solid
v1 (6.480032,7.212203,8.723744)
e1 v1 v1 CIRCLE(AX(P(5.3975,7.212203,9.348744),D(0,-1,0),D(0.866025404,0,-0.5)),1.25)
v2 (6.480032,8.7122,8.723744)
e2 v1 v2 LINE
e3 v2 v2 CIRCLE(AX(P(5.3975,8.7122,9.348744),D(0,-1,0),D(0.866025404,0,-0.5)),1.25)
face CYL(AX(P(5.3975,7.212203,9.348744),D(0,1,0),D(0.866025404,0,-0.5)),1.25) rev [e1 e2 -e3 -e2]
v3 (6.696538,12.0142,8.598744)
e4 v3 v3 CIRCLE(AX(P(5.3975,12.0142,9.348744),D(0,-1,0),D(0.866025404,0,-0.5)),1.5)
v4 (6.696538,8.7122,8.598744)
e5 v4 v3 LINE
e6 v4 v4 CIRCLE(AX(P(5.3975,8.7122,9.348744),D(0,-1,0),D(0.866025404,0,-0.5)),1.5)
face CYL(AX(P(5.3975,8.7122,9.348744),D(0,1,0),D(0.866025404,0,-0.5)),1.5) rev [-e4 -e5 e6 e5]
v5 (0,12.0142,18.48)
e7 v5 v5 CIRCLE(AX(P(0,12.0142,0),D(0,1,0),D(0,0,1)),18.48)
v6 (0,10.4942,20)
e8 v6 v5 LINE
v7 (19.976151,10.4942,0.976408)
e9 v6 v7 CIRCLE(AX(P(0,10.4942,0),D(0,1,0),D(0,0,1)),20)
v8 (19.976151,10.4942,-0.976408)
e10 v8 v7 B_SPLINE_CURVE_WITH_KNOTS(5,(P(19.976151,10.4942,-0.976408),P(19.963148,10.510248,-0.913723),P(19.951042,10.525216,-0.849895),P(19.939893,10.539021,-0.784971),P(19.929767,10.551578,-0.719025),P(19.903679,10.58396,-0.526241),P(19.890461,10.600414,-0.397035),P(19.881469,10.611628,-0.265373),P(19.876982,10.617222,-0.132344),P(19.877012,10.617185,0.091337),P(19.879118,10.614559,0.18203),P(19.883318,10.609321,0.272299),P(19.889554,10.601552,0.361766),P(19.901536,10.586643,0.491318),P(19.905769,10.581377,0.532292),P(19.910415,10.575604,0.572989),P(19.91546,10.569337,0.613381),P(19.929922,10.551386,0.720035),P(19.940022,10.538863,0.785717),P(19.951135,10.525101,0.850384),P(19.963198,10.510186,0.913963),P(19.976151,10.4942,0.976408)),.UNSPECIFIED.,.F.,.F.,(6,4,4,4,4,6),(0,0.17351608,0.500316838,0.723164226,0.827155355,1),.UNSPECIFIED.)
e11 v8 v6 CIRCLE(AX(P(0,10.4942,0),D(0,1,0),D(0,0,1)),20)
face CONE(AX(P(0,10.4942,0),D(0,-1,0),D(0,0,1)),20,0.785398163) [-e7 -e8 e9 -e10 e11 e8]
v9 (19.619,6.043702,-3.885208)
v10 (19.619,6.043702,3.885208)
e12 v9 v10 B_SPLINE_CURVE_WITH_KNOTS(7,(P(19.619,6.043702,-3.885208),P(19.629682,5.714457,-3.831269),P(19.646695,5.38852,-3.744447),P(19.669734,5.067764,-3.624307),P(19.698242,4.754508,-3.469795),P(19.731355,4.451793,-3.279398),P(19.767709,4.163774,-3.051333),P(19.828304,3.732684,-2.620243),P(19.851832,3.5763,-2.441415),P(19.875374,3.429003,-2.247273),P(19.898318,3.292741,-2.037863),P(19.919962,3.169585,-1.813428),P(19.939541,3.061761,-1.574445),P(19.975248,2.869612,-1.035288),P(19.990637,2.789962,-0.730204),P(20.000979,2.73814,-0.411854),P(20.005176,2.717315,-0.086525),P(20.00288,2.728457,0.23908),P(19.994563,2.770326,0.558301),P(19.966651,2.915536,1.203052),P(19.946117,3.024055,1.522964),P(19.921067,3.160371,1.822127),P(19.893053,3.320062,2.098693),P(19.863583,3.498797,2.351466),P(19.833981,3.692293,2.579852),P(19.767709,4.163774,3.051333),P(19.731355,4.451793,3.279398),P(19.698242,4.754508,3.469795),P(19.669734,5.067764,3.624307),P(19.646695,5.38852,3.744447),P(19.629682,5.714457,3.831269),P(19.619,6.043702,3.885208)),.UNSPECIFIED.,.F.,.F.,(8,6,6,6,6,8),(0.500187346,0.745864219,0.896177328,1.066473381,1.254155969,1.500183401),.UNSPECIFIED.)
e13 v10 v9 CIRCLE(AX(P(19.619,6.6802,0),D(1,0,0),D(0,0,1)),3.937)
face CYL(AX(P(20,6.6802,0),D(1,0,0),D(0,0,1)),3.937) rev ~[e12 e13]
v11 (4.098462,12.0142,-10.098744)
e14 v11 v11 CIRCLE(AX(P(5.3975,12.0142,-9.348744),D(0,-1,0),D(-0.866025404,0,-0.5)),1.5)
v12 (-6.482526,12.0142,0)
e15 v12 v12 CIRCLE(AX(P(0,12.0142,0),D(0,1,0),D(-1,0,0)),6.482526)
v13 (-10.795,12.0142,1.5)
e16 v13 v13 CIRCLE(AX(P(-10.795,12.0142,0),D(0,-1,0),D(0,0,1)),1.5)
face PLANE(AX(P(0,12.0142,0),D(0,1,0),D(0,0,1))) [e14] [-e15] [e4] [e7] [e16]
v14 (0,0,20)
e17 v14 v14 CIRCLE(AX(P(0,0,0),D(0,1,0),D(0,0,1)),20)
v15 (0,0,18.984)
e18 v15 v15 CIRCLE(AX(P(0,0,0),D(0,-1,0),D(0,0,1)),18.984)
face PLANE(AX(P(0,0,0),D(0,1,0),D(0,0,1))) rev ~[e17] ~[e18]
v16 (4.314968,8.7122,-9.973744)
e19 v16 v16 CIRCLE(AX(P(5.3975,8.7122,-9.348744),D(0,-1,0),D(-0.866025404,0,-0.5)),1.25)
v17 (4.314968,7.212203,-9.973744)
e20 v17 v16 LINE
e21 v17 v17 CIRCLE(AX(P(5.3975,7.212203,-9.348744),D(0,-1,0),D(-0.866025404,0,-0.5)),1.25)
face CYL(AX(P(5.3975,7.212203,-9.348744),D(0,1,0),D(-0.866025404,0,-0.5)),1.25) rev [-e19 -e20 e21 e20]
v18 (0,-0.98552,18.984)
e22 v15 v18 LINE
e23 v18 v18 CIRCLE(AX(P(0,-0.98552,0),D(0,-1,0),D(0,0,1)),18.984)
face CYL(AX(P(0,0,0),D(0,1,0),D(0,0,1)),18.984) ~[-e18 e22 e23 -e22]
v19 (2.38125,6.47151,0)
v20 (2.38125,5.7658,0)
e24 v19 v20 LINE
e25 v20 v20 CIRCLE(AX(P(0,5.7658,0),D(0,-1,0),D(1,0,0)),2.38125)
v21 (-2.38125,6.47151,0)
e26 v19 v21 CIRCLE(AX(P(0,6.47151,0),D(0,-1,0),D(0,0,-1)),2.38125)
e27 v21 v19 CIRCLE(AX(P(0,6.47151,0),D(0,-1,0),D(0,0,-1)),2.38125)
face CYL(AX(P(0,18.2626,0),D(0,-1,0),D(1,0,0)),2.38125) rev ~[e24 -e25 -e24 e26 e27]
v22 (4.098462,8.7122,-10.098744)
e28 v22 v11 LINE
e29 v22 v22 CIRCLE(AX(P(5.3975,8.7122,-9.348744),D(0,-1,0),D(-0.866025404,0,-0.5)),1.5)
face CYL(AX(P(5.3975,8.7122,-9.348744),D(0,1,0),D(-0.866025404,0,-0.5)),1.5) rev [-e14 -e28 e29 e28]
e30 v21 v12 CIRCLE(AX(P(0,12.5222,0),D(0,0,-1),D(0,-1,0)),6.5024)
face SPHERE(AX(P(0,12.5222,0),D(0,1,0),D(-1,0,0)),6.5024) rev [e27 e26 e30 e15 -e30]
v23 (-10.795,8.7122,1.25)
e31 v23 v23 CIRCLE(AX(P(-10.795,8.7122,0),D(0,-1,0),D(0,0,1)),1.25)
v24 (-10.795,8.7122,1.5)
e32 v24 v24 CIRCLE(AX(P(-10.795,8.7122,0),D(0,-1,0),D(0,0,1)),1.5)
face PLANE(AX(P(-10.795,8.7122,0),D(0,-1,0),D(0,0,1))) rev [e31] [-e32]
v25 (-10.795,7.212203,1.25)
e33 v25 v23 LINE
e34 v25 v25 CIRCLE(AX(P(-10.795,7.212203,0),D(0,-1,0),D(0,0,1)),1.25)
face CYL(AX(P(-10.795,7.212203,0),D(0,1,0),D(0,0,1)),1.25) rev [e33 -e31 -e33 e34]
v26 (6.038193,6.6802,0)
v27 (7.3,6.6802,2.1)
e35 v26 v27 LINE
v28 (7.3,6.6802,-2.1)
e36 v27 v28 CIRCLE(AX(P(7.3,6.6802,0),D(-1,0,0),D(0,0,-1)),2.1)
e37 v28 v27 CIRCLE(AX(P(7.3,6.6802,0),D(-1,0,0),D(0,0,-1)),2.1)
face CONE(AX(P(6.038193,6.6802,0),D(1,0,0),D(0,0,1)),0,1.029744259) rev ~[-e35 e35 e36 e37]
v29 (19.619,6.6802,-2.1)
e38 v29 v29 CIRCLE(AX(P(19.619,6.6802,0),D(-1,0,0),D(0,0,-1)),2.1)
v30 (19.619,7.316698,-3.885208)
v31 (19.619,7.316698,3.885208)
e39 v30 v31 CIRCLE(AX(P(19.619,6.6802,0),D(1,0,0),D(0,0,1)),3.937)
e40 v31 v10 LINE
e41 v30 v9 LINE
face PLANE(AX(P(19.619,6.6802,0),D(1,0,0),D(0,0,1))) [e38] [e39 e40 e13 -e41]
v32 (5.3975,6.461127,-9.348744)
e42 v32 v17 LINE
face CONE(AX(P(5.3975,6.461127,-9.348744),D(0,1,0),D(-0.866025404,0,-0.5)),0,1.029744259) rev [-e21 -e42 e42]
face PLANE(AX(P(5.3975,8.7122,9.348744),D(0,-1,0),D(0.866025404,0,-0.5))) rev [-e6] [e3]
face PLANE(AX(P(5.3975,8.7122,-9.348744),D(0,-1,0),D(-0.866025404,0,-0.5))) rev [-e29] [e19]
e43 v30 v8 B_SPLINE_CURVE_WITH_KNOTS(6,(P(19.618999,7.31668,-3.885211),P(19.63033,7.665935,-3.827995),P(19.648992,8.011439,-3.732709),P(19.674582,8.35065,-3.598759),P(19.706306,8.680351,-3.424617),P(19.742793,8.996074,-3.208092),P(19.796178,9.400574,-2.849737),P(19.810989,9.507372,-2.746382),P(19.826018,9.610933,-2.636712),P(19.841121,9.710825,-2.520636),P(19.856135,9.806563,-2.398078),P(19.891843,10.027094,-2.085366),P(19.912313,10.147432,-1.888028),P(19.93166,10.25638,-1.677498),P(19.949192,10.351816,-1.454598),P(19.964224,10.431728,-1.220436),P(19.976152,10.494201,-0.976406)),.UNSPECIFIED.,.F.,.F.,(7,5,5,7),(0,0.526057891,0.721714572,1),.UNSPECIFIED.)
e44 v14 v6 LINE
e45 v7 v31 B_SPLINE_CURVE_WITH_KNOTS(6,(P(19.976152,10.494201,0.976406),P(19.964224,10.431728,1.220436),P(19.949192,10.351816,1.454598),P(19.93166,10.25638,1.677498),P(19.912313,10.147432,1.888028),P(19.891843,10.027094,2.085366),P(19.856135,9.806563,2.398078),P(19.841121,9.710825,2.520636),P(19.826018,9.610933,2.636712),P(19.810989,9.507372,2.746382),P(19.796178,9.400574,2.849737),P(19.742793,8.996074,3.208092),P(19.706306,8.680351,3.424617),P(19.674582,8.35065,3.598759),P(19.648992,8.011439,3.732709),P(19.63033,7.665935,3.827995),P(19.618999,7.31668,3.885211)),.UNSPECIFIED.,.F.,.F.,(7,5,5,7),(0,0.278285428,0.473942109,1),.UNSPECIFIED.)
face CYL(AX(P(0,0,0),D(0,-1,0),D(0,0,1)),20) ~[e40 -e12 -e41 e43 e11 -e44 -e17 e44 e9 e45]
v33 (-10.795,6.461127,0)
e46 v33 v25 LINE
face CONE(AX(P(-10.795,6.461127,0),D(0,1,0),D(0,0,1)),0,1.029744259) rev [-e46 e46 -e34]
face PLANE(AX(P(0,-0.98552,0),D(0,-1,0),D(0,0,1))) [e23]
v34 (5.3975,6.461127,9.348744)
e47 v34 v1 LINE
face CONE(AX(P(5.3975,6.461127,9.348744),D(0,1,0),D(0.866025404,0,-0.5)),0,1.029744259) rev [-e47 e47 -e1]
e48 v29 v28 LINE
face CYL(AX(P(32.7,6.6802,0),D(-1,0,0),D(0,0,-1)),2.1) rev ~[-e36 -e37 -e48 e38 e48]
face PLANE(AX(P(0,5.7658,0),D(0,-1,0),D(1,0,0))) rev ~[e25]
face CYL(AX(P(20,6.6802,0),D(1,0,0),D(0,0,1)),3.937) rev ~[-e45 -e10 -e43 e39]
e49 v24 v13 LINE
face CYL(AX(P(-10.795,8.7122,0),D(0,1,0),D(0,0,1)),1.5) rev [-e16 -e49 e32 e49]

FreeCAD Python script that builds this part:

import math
import FreeCAD as App
import Part
import Sketcher
from FreeCAD import Vector
Q = App.Units.Quantity


def edges_at(feature, points):
    """Names of the edges that pass closest to the given points."""
    edges = feature.Shape.Edges
    near = lambda p: min(range(len(edges)), key=lambda i: edges[i].distToShape(Part.Vertex(*p))[0])
    return sorted({f"Edge{near(p) + 1}" for p in points})


def add_polygon(sketch, points):
    """Adds a closed chain of lines whose ends are joined by coincident constraints."""
    first, n = sketch.GeometryCount, len(points)
    for a, b in zip(points, points[1:] + points[:1]):
        sketch.addGeometry(Part.LineSegment(App.Vector(*a, 0), App.Vector(*b, 0)), False)
    for i in range(n):
        sketch.addConstraint(Sketcher.Constraint("Coincident", first + i, 2, first + (i + 1) % n, 1))

doc = App.newDocument("Part")
body = doc.addObject("PartDesign::Body", "Body")

# Sketch on XZ plane
sketch1 = body.newObject("Sketcher::SketchObject", "Sketch")
sketch1.AttachmentSupport = (doc.getObject("XZ_Plane"), [""])
sketch1.MapMode = "FlatFace"
sketch1.addGeometry(Part.Circle(Vector(0, 0, 0), Vector(0, 0, 1), 20), False)
sketch1.addConstraint(Sketcher.Constraint("Coincident", 0, 3, -1, 1))
sketch1.addConstraint(Sketcher.Constraint("Diameter", 0, 40.0))
pad1 = body.newObject("PartDesign::Pad", "Pad")
pad1.Profile = sketch1
pad1.Length = Q("0.473 in")
pad1.Reversed = True
doc.recompute()

chamfer = body.newObject("PartDesign::Chamfer", "Chamfer")
chamfer.Base = (pad1, edges_at(pad1, [(0, 12.014, -20)]))
chamfer.Size = 1.52

# Sketch on XY plane
sketch2 = body.newObject("Sketcher::SketchObject", "Sketch001")
sketch2.AttachmentSupport = (doc.getObject("XY_Plane"), [""])
sketch2.MapMode = "FlatFace"
sketch2.addGeometry(Part.LineSegment(Vector(0, 6, 0), Vector(0, 19, 0)), False)
sketch2.addGeometry(Part.ArcOfCircle(Part.Circle(Vector(0, 13, 0), Vector(0, 0, 1), 7), math.radians(90), math.radians(270)), False)
sketch2.addConstraint(Sketcher.Constraint("Coincident", 0, 1, 1, 2))
sketch2.addConstraint(Sketcher.Constraint("Coincident", 1, 1, 0, 2))
sketch2.addConstraint(Sketcher.Constraint("Vertical", 0))
sketch2.addConstraint(Sketcher.Constraint("PointOnObject", 1, 3, -2))
sketch2.addConstraint(Sketcher.Constraint("PointOnObject", 0, 1, -2))
sketch2.addConstraint(Sketcher.Constraint("Radius", 1, Q("0.256 in")))
sketch2.addConstraint(Sketcher.Constraint("DistanceY", -1, 1, 1, 3, Q("0.493 in")))
groove = body.newObject("PartDesign::Groove", "Groove")
groove.Profile = sketch2
groove.ReferenceAxis = (sketch2, ["V_Axis"])
groove.Angle = 360

# Sketch on XZ plane
sketch3 = body.newObject("Sketcher::SketchObject", "Sketch002")
sketch3.AttachmentSupport = (doc.getObject("XZ_Plane"), [""])
sketch3.MapMode = "FlatFace"
sketch3.AttachmentOffset = App.Placement(Vector(0, 0, -0.473 * 25.4), App.Rotation())
sketch3.addGeometry(Part.Circle(Vector(0, 0, 0), Vector(0, 0, 1), 2.4), False)
sketch3.addConstraint(Sketcher.Constraint("Coincident", 0, 3, -1, 1))
sketch3.addConstraint(Sketcher.Constraint("Diameter", 0, Q("0.1875 in")))
doc.recompute()
hole = body.newObject("PartDesign::Hole", "Hole")
hole.Profile = sketch3
hole.ThreadType = "None"
hole.Diameter = Q("0.1875 in")
hole.DepthType = "Dimension"
hole.Depth = Q("0.246 in")
hole.DrillPoint = "Flat"
hole.Reversed = True

# Sketch on XZ plane
sketch4 = body.newObject("Sketcher::SketchObject", "Sketch003")
sketch4.AttachmentSupport = (doc.getObject("XZ_Plane"), [""])
sketch4.MapMode = "FlatFace"
sketch4.addGeometry(Part.Circle(Vector(0, 0, 0), Vector(0, 0, 1), 19), False)
sketch4.addConstraint(Sketcher.Constraint("Coincident", 0, 3, -1, 1))
sketch4.addConstraint(Sketcher.Constraint("Diameter", 0, 37.968))
pad2 = body.newObject("PartDesign::Pad", "Pad001")
pad2.Profile = sketch4
pad2.Length = Q("0.0388 in")

# Sketch on YZ plane
sketch5 = body.newObject("Sketcher::SketchObject", "Sketch004")
sketch5.AttachmentSupport = (doc.getObject("YZ_Plane"), [""])
sketch5.MapMode = "FlatFace"
sketch5.AttachmentOffset = App.Placement(Vector(0, 0, 20), App.Rotation())
sketch5.addGeometry(Part.Circle(Vector(6.7, 0, 0), Vector(0, 0, 1), 2.1), False)
sketch5.addConstraint(Sketcher.Constraint("PointOnObject", 0, 3, -1))
sketch5.addConstraint(Sketcher.Constraint("Diameter", 0, 4.2))
sketch5.addConstraint(Sketcher.Constraint("DistanceX", -1, 1, 0, 3, Q("0.263 in")))
doc.recompute()
hole2 = body.newObject("PartDesign::Hole", "Hole001")
hole2.Profile = sketch5
hole2.ThreadType = "None"
hole2.Diameter = 4.2
hole2.DepthType = "Dimension"
hole2.Depth = Q("0.5 in")
hole2.DrillPoint = "Angled"
hole2.DrillPointAngle = 118

# Sketch on YZ plane
sketch6 = body.newObject("Sketcher::SketchObject", "Sketch005")
sketch6.AttachmentSupport = (doc.getObject("YZ_Plane"), [""])
sketch6.MapMode = "FlatFace"
sketch6.AttachmentOffset = App.Placement(Vector(0, 0, -0.425 * 25.4), App.Rotation())
add_polygon(sketch6, [(6.46, 0), (12.01, 0), (12.01, 1.5), (8.71, 1.5), (8.71, 1.25), (7.21, 1.25)])  # lines 0-5
sketch6.addConstraint(Sketcher.Constraint("Horizontal", 0))
sketch6.addConstraint(Sketcher.Constraint("Vertical", 1))
sketch6.addConstraint(Sketcher.Constraint("Horizontal", 2))
sketch6.addConstraint(Sketcher.Constraint("Vertical", 3))
sketch6.addConstraint(Sketcher.Constraint("Horizontal", 4))
sketch6.addConstraint(Sketcher.Constraint("PointOnObject", 0, 2, -1))
sketch6.addConstraint(Sketcher.Constraint("Angle", 5, Q("-121 deg")))
sketch6.addConstraint(Sketcher.Constraint("DistanceX", 2, 2, 2, 1, Q("0.13 in")))
sketch6.addConstraint(Sketcher.Constraint("DistanceX", -1, 1, 0, 2, Q("0.473 in")))
sketch6.addConstraint(Sketcher.Constraint("DistanceY", 1, 1, 1, 2, 1.5))
sketch6.addConstraint(Sketcher.Constraint("DistanceY", 3, 2, 3, 1, 0.25))
sketch6.addConstraint(Sketcher.Constraint("DistanceX", 0, 1, 0, 2, 5.553073))
groove2 = body.newObject("PartDesign::Groove", "Groove001")
groove2.Profile = sketch6
groove2.ReferenceAxis = (sketch6, ["H_Axis"])
groove2.Angle = 360
doc.recompute()

polarpattern = body.newObject("PartDesign::PolarPattern", "PolarPattern")
polarpattern.Originals = [groove2]
polarpattern.Axis = (doc.getObject("Y_Axis"), [""])
polarpattern.Angle = 360
polarpattern.Occurrences = 3
body.Tip = polarpattern

# Sketch on YZ plane
sketch7 = body.newObject("Sketcher::SketchObject", "Sketch006")
sketch7.AttachmentSupport = (doc.getObject("YZ_Plane"), [""])
sketch7.MapMode = "FlatFace"
sketch7.AttachmentOffset = App.Placement(Vector(0, 0, 20), App.Rotation())
sketch7.addGeometry(Part.Circle(Vector(6.7, 0, 0), Vector(0, 0, 1), 3.9), False)
sketch7.addConstraint(Sketcher.Constraint("PointOnObject", 0, 3, -1))
sketch7.addConstraint(Sketcher.Constraint("Diameter", 0, Q("0.31 in")))
sketch7.addConstraint(Sketcher.Constraint("DistanceX", -1, 1, 0, 3, Q("0.263 in")))
pocket1 = body.newObject("PartDesign::Pocket", "Pocket")
pocket1.Profile = sketch7
pocket1.Length = Q("0.015 in")

doc.recompute()
